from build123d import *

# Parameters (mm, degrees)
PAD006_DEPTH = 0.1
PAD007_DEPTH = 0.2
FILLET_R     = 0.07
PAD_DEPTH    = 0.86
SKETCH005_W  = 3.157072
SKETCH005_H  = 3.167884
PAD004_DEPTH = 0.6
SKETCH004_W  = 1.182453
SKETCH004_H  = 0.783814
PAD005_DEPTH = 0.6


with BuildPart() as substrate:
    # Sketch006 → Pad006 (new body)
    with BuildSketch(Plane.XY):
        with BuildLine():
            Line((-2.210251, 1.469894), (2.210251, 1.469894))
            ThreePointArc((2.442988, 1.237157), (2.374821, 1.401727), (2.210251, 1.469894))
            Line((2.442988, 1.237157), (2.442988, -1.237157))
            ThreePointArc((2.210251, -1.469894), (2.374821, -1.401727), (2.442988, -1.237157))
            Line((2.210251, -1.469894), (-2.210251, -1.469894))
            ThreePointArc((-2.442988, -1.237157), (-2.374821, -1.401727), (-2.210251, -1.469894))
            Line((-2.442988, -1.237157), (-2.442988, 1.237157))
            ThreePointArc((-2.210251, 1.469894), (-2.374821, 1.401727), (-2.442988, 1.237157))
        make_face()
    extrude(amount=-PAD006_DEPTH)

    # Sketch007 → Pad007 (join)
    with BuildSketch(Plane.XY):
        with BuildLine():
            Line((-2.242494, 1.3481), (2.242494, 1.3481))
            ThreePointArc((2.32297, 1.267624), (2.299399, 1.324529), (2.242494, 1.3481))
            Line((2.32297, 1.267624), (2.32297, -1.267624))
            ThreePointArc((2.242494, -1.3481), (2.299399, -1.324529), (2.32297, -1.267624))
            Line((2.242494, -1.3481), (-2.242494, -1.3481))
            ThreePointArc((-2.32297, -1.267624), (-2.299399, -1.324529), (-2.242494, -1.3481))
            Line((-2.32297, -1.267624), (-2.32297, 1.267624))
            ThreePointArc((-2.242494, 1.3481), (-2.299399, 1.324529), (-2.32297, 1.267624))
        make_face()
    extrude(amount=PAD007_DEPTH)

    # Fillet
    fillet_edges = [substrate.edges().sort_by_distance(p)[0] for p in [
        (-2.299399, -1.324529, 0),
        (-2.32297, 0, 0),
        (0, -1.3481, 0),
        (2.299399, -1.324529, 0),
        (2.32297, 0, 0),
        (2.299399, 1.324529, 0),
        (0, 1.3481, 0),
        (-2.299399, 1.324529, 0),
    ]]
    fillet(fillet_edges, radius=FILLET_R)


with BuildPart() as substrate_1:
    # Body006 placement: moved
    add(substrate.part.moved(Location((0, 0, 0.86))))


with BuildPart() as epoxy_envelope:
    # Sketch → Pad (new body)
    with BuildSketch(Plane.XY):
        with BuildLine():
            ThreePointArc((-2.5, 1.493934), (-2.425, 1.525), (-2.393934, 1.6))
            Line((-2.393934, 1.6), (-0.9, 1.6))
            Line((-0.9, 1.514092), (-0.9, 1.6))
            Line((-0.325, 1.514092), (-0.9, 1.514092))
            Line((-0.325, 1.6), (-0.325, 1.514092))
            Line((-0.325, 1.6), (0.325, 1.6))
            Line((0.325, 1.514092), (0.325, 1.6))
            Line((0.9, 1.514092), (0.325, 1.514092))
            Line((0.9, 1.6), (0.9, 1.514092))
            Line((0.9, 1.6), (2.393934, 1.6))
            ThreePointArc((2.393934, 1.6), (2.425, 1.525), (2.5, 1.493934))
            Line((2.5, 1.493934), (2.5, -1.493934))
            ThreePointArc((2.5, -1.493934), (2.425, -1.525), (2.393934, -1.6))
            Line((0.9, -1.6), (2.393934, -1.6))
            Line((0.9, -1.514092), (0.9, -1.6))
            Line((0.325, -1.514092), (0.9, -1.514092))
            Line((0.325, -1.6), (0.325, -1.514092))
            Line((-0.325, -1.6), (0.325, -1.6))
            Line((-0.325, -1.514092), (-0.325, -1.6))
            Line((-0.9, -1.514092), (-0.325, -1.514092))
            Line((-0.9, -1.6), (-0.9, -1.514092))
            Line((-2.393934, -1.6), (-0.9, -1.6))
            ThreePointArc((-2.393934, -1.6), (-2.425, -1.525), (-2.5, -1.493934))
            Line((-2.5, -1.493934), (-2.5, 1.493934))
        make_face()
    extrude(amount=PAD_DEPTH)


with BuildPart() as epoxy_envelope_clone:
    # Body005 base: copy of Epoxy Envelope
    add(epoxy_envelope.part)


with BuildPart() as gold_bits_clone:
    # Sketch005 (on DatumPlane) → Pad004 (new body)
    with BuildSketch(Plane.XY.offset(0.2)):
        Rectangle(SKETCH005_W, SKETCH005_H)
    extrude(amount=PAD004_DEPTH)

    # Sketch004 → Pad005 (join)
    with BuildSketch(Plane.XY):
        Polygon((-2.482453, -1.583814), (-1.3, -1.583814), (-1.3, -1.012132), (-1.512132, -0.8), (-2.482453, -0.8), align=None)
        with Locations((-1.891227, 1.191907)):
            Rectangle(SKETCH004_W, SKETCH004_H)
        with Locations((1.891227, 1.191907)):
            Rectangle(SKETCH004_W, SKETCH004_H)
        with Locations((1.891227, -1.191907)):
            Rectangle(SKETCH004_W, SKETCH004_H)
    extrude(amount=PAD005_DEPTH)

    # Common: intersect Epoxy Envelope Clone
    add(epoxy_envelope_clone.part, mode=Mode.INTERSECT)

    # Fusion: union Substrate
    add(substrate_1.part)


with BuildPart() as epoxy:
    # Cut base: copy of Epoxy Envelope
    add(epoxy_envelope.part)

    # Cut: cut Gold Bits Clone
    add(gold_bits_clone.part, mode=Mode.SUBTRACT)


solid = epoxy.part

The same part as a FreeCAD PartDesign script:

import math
import FreeCAD as App
import Part
import Sketcher
from FreeCAD import Vector
Q = App.Units.Quantity


def edges_at(feature, points):
    """Names of the edges that pass closest to the given points."""
    edges = feature.Shape.Edges
    near = lambda p: min(range(len(edges)), key=lambda i: edges[i].distToShape(Part.Vertex(*p))[0])
    return sorted({f"Edge{near(p) + 1}" for p in points})


def add_polygon(sketch, points):
    """Adds a closed chain of lines whose ends are joined by coincident constraints."""
    first, n = sketch.GeometryCount, len(points)
    for a, b in zip(points, points[1:] + points[:1]):
        sketch.addGeometry(Part.LineSegment(App.Vector(*a, 0), App.Vector(*b, 0)), False)
    for i in range(n):
        sketch.addConstraint(Sketcher.Constraint("Coincident", first + i, 2, first + (i + 1) % n, 1))

doc = App.newDocument("Part")
body = doc.addObject("PartDesign::Body", "Body")

# Sketch on XY plane
sketch1 = body.newObject("Sketcher::SketchObject", "Sketch")
sketch1.AttachmentSupport = (doc.getObject("XY_Plane"), [""])
sketch1.MapMode = "FlatFace"
sketch1.addGeometry(Part.LineSegment(Vector(2.21, 1.47, 0), Vector(-2.21, 1.47, 0)), False)
sketch1.addGeometry(Part.ArcOfCircle(Part.Circle(Vector(-2.21, 1.24, 0), Vector(0, 0, 1), 0.23), math.radians(90), math.radians(180)), False)
sketch1.addGeometry(Part.LineSegment(Vector(-2.44, 1.24, 0), Vector(-2.44, -1.24, 0)), False)
sketch1.addGeometry(Part.ArcOfCircle(Part.Circle(Vector(-2.21, -1.24, 0), Vector(0, 0, 1), 0.23), math.radians(180), math.radians(270)), False)
sketch1.addGeometry(Part.LineSegment(Vector(-2.21, -1.47, 0), Vector(2.21, -1.47, 0)), False)
sketch1.addGeometry(Part.ArcOfCircle(Part.Circle(Vector(2.21, -1.24, 0), Vector(0, 0, 1), 0.23), math.radians(-90), math.radians(0)), False)
sketch1.addGeometry(Part.LineSegment(Vector(2.44, -1.24, 0), Vector(2.44, 1.24, 0)), False)
sketch1.addGeometry(Part.ArcOfCircle(Part.Circle(Vector(2.21, 1.24, 0), Vector(0, 0, 1), 0.23), math.radians(0), math.radians(90)), False)
sketch1.addConstraint(Sketcher.Constraint("Tangent", 0, 2, 1, 1))
sketch1.addConstraint(Sketcher.Constraint("Tangent", 1, 2, 2, 1))
sketch1.addConstraint(Sketcher.Constraint("Tangent", 2, 2, 3, 1))
sketch1.addConstraint(Sketcher.Constraint("Tangent", 3, 2, 4, 1))
sketch1.addConstraint(Sketcher.Constraint("Tangent", 4, 2, 5, 1))
sketch1.addConstraint(Sketcher.Constraint("Tangent", 5, 2, 6, 1))
sketch1.addConstraint(Sketcher.Constraint("Tangent", 6, 2, 7, 1))
sketch1.addConstraint(Sketcher.Constraint("Tangent", 7, 2, 0, 1))
sketch1.addConstraint(Sketcher.Constraint("Horizontal", 0))
sketch1.addConstraint(Sketcher.Constraint("Vertical", 2))
sketch1.addConstraint(Sketcher.Constraint("Horizontal", 4))
sketch1.addConstraint(Sketcher.Constraint("Vertical", 6))
sketch1.addConstraint(Sketcher.Constraint("Equal", 1, 3))
sketch1.addConstraint(Sketcher.Constraint("Equal", 3, 5))
sketch1.addConstraint(Sketcher.Constraint("Equal", 5, 7))
sketch1.addConstraint(Sketcher.Constraint("Symmetric", 1, 3, 5, 3, -1, 1))
sketch1.addConstraint(Sketcher.Constraint("Radius", 1, Q("0.232737 mm")))
sketch1.addConstraint(Sketcher.Constraint("DistanceX", 0, 2, 0, 1, Q("4.420502 mm")))
sketch1.addConstraint(Sketcher.Constraint("DistanceY", 2, 2, 2, 1, Q("2.474314 mm")))
pad1 = body.newObject("PartDesign::Pad", "Pad")
pad1.Profile = sketch1
pad1.Length = 0.1
pad1.Reversed = True

# Sketch on XY plane
sketch2 = body.newObject("Sketcher::SketchObject", "Sketch001")
sketch2.AttachmentSupport = (doc.getObject("XY_Plane"), [""])
sketch2.MapMode = "FlatFace"
sketch2.addGeometry(Part.LineSegment(Vector(2.24, 1.35, 0), Vector(-2.24, 1.35, 0)), False)
sketch2.addGeometry(Part.ArcOfCircle(Part.Circle(Vector(-2.24, 1.27, 0), Vector(0, 0, 1), 0.08), math.radians(90), math.radians(180)), False)
sketch2.addGeometry(Part.LineSegment(Vector(-2.32, 1.27, 0), Vector(-2.32, -1.27, 0)), False)
sketch2.addGeometry(Part.ArcOfCircle(Part.Circle(Vector(-2.24, -1.27, 0), Vector(0, 0, 1), 0.08), math.radians(-180), math.radians(-90)), False)
sketch2.addGeometry(Part.LineSegment(Vector(-2.24, -1.35, 0), Vector(2.24, -1.35, 0)), False)
sketch2.addGeometry(Part.ArcOfCircle(Part.Circle(Vector(2.24, -1.27, 0), Vector(0, 0, 1), 0.08), math.radians(-90), math.radians(0)), False)
sketch2.addGeometry(Part.LineSegment(Vector(2.32, -1.27, 0), Vector(2.32, 1.27, 0)), False)
sketch2.addGeometry(Part.ArcOfCircle(Part.Circle(Vector(2.24, 1.27, 0), Vector(0, 0, 1), 0.08), math.radians(0), math.radians(90)), False)
sketch2.addConstraint(Sketcher.Constraint("Coincident", 0, 2, 1, 1))
sketch2.addConstraint(Sketcher.Constraint("Coincident", 1, 2, 2, 1))
sketch2.addConstraint(Sketcher.Constraint("Coincident", 2, 2, 3, 1))
sketch2.addConstraint(Sketcher.Constraint("Coincident", 3, 2, 4, 1))
sketch2.addConstraint(Sketcher.Constraint("Coincident", 4, 2, 5, 1))
sketch2.addConstraint(Sketcher.Constraint("Coincident", 5, 2, 6, 1))
sketch2.addConstraint(Sketcher.Constraint("Coincident", 6, 2, 7, 1))
sketch2.addConstraint(Sketcher.Constraint("Coincident", 7, 2, 0, 1))
sketch2.addConstraint(Sketcher.Constraint("Horizontal", 0))
sketch2.addConstraint(Sketcher.Constraint("Vertical", 2))
sketch2.addConstraint(Sketcher.Constraint("Horizontal", 4))
sketch2.addConstraint(Sketcher.Constraint("Vertical", 6))
sketch2.addConstraint(Sketcher.Constraint("Equal", 1, 3))
sketch2.addConstraint(Sketcher.Constraint("Equal", 3, 5))
sketch2.addConstraint(Sketcher.Constraint("Equal", 5, 7))
sketch2.addConstraint(Sketcher.Constraint("Symmetric", 1, 3, 5, 3, -1, 1))
sketch2.addConstraint(Sketcher.Constraint("Horizontal", 7, 3, 1, 2))
sketch2.addConstraint(Sketcher.Constraint("Horizontal", 5, 3, 2, 2))
sketch2.addConstraint(Sketcher.Constraint("Horizontal", 2, 2, 5, 2))
sketch2.addConstraint(Sketcher.Constraint("Horizontal", 1, 2, 6, 2))
sketch2.addConstraint(Sketcher.Constraint("Vertical", 3, 3, 0, 2))
sketch2.addConstraint(Sketcher.Constraint("Vertical", 0, 2, 3, 2))
sketch2.addConstraint(Sketcher.Constraint("Vertical", 7, 3, 4, 2))
sketch2.addConstraint(Sketcher.Constraint("Vertical", 4, 2, 7, 2))
sketch2.addConstraint(Sketcher.Constraint("Radius", 1, Q("0.080476 mm")))
sketch2.addConstraint(Sketcher.Constraint("DistanceX", 0, 2, 0, 1, Q("4.484988 mm")))
sketch2.addConstraint(Sketcher.Constraint("DistanceY", 2, 2, 2, 1, Q("2.535248 mm")))
pad2 = body.newObject("PartDesign::Pad", "Pad001")
pad2.Profile = sketch2
pad2.Length = 0.2
doc.recompute()

fillet = body.newObject("PartDesign::Fillet", "Fillet")
fillet.Base = (pad2, edges_at(pad2, [
    (-2.299, -1.325, 0),
    (-2.323, 0, 0),
    (0, -1.348, 0),
    (2.299, -1.325, 0),
    (2.323, 0, 0),
    (2.299, 1.325, 0),
    (0, 1.348, 0),
    (-2.299, 1.325, 0),
]))
fillet.Radius = 0.07
body2 = doc.addObject("PartDesign::Body", "Body001")
doc.recompute()

body.Placement = App.Placement(Vector(0, 0, 0.86), App.Rotation(Vector(0, 0, 1), 0))
boolean = body2.newObject("PartDesign::Boolean", "Boolean")
boolean.Type = "Fuse"
boolean.addObjects([body])
body3 = doc.addObject("PartDesign::Body", "Body002")

# Sketch on XY plane
sketch3 = body3.newObject("Sketcher::SketchObject", "Sketch002")
sketch3.AttachmentSupport = (doc.getObject("XY_Plane002"), [""])
sketch3.MapMode = "FlatFace"
sketch3.addGeometry(Part.ArcOfCircle(Part.Circle(Vector(-2.5, 1.6, 0), Vector(0, 0, 1), 0.11), math.radians(-90), math.radians(0)), False)
sketch3.addGeometry(Part.LineSegment(Vector(-2.5, 1.49, 0), Vector(-2.5, -1.49, 0)), False)
sketch3.addGeometry(Part.ArcOfCircle(Part.Circle(Vector(-2.5, -1.6, 0), Vector(0, 0, 1), 0.11), math.radians(0), math.radians(90)), False)
sketch3.addGeometry(Part.LineSegment(Vector(-2.39, -1.6, 0), Vector(-0.9, -1.6, 0)), False)
sketch3.addGeometry(Part.LineSegment(Vector(-0.9, -1.6, 0), Vector(-0.9, -1.51, 0)), False)
sketch3.addGeometry(Part.LineSegment(Vector(-0.9, -1.51, 0), Vector(-0.33, -1.51, 0)), False)
sketch3.addGeometry(Part.LineSegment(Vector(-0.33, -1.51, 0), Vector(-0.33, -1.6, 0)), False)
sketch3.addGeometry(Part.LineSegment(Vector(-0.33, -1.6, 0), Vector(0.33, -1.6, 0)), False)
sketch3.addGeometry(Part.LineSegment(Vector(0.33, -1.6, 0), Vector(0.33, -1.51, 0)), False)
sketch3.addGeometry(Part.LineSegment(Vector(0.33, -1.51, 0), Vector(0.9, -1.51, 0)), False)
sketch3.addGeometry(Part.LineSegment(Vector(0.9, -1.51, 0), Vector(0.9, -1.6, 0)), False)
sketch3.addGeometry(Part.LineSegment(Vector(0.9, -1.6, 0), Vector(2.39, -1.6, 0)), False)
sketch3.addGeometry(Part.ArcOfCircle(Part.Circle(Vector(2.5, -1.6, 0), Vector(0, 0, 1), 0.11), math.radians(90), math.radians(180)), False)
sketch3.addGeometry(Part.LineSegment(Vector(2.5, -1.49, 0), Vector(2.5, 1.49, 0)), False)
sketch3.addGeometry(Part.ArcOfCircle(Part.Circle(Vector(2.5, 1.6, 0), Vector(0, 0, 1), 0.11), math.radians(180), math.radians(270)), False)
sketch3.addGeometry(Part.LineSegment(Vector(2.39, 1.6, 0), Vector(0.9, 1.6, 0)), False)
sketch3.addGeometry(Part.LineSegment(Vector(0.9, 1.6, 0), Vector(0.9, 1.51, 0)), False)
sketch3.addGeometry(Part.LineSegment(Vector(0.9, 1.51, 0), Vector(0.33, 1.51, 0)), False)
sketch3.addGeometry(Part.LineSegment(Vector(0.33, 1.51, 0), Vector(0.33, 1.6, 0)), False)
sketch3.addGeometry(Part.LineSegment(Vector(0.33, 1.6, 0), Vector(-0.33, 1.6, 0)), False)
sketch3.addGeometry(Part.LineSegment(Vector(-0.33, 1.6, 0), Vector(-0.33, 1.51, 0)), False)
sketch3.addGeometry(Part.LineSegment(Vector(-0.33, 1.51, 0), Vector(-0.9, 1.51, 0)), False)
sketch3.addGeometry(Part.LineSegment(Vector(-0.9, 1.51, 0), Vector(-0.9, 1.6, 0)), False)
sketch3.addGeometry(Part.LineSegment(Vector(-0.9, 1.6, 0), Vector(-2.39, 1.6, 0)), False)
sketch3.addConstraint(Sketcher.Constraint("Coincident", 0, 1, 1, 1))
sketch3.addConstraint(Sketcher.Constraint("Coincident", 1, 2, 2, 2))
sketch3.addConstraint(Sketcher.Constraint("Coincident", 2, 1, 3, 1))
sketch3.addConstraint(Sketcher.Constraint("Coincident", 3, 2, 4, 1))
sketch3.addConstraint(Sketcher.Constraint("Coincident", 4, 2, 5, 1))
sketch3.addConstraint(Sketcher.Constraint("Coincident", 5, 2, 6, 1))
sketch3.addConstraint(Sketcher.Constraint("Coincident", 6, 2, 7, 1))
sketch3.addConstraint(Sketcher.Constraint("Coincident", 7, 2, 8, 1))
sketch3.addConstraint(Sketcher.Constraint("Coincident", 8, 2, 9, 1))
sketch3.addConstraint(Sketcher.Constraint("Coincident", 9, 2, 10, 1))
sketch3.addConstraint(Sketcher.Constraint("Coincident", 10, 2, 11, 1))
sketch3.addConstraint(Sketcher.Constraint("Coincident", 11, 2, 12, 2))
sketch3.addConstraint(Sketcher.Constraint("Coincident", 12, 1, 13, 1))
sketch3.addConstraint(Sketcher.Constraint("Coincident", 13, 2, 14, 2))
sketch3.addConstraint(Sketcher.Constraint("Coincident", 14, 1, 15, 1))
sketch3.addConstraint(Sketcher.Constraint("Coincident", 15, 2, 16, 1))
sketch3.addConstraint(Sketcher.Constraint("Coincident", 16, 2, 17, 1))
sketch3.addConstraint(Sketcher.Constraint("Coincident", 17, 2, 18, 1))
sketch3.addConstraint(Sketcher.Constraint("Coincident", 18, 2, 19, 1))
sketch3.addConstraint(Sketcher.Constraint("Coincident", 19, 2, 20, 1))
sketch3.addConstraint(Sketcher.Constraint("Coincident", 20, 2, 21, 1))
sketch3.addConstraint(Sketcher.Constraint("Coincident", 21, 2, 22, 1))
sketch3.addConstraint(Sketcher.Constraint("Coincident", 22, 2, 23, 1))
sketch3.addConstraint(Sketcher.Constraint("Coincident", 23, 2, 0, 2))
sketch3.addConstraint(Sketcher.Constraint("Vertical", 1))
sketch3.addConstraint(Sketcher.Constraint("Horizontal", 3))
sketch3.addConstraint(Sketcher.Constraint("Vertical", 4))
sketch3.addConstraint(Sketcher.Constraint("Horizontal", 5))
sketch3.addConstraint(Sketcher.Constraint("Vertical", 6))
sketch3.addConstraint(Sketcher.Constraint("Horizontal", 7))
sketch3.addConstraint(Sketcher.Constraint("Vertical", 8))
sketch3.addConstraint(Sketcher.Constraint("Horizontal", 9))
sketch3.addConstraint(Sketcher.Constraint("Vertical", 10))
sketch3.addConstraint(Sketcher.Constraint("Horizontal", 11))
sketch3.addConstraint(Sketcher.Constraint("Vertical", 13))
sketch3.addConstraint(Sketcher.Constraint("Horizontal", 15))
sketch3.addConstraint(Sketcher.Constraint("Vertical", 16))
sketch3.addConstraint(Sketcher.Constraint("Horizontal", 17))
sketch3.addConstraint(Sketcher.Constraint("Vertical", 18))
sketch3.addConstraint(Sketcher.Constraint("Horizontal", 19))
sketch3.addConstraint(Sketcher.Constraint("Vertical", 20))
sketch3.addConstraint(Sketcher.Constraint("Horizontal", 21))
sketch3.addConstraint(Sketcher.Constraint("Vertical", 22))
sketch3.addConstraint(Sketcher.Constraint("Horizontal", 23))
sketch3.addConstraint(Sketcher.Constraint("Equal", 0, 2))
sketch3.addConstraint(Sketcher.Constraint("Equal", 2, 12))
sketch3.addConstraint(Sketcher.Constraint("Equal", 12, 14))
sketch3.addConstraint(Sketcher.Constraint("Symmetric", 0, 3, 12, 3, -1, 1))
sketch3.addConstraint(Sketcher.Constraint("Symmetric", 2, 3, 14, 3, -1, 1))
sketch3.addConstraint(Sketcher.Constraint("Symmetric", 3, 2, 15, 2, -1, 1))
sketch3.addConstraint(Sketcher.Constraint("Symmetric", 5, 2, 17, 2, -1, 1))
sketch3.addConstraint(Sketcher.Constraint("Symmetric", 7, 2, 19, 2, -1, 1))
sketch3.addConstraint(Sketcher.Constraint("Symmetric", 9, 2, 21, 2, -1, 1))
sketch3.addConstraint(Sketcher.Constraint("Symmetric", 2, 3, 12, 3, -2))
sketch3.addConstraint(Sketcher.Constraint("Symmetric", 5, 2, 8, 2, -2))
sketch3.addConstraint(Sketcher.Constraint("Symmetric", 3, 2, 10, 2, -2))
sketch3.addConstraint(Sketcher.Constraint("Horizontal", 12, 3, 2, 1))
sketch3.addConstraint(Sketcher.Constraint("Horizontal", 3, 2, 6, 2))
sketch3.addConstraint(Sketcher.Constraint("Horizontal", 19, 2, 22, 2))
sketch3.addConstraint(Sketcher.Constraint("Vertical", 2, 3, 0, 1))
sketch3.addConstraint(Sketcher.Constraint("Vertical", 14, 3, 12, 1))
sketch3.addConstraint(Sketcher.Constraint("DistanceX", 2, 3, 12, 3, Q("5 mm")))
sketch3.addConstraint(Sketcher.Constraint("DistanceX", 7, 1, 7, 2, Q("0.65 mm")))
sketch3.addConstraint(Sketcher.Constraint("DistanceY", -1, 1, 0, 3, Q("1.6 mm")))
sketch3.addConstraint(Sketcher.Constraint("DistanceX", 3, 2, -1, 1, Q("0.9 mm")))
sketch3.addConstraint(Sketcher.Constraint("Radius", 0, Q("0.106066 mm")))
sketch3.addConstraint(Sketcher.Constraint("DistanceY", 4, 1, 4, 2, Q("0.085908 mm")))
pad3 = body3.newObject("PartDesign::Pad", "Pad002")
pad3.Profile = sketch3
pad3.Length = 0.86
body4 = doc.addObject("PartDesign::Body", "Body003")
doc.recompute()

body4.BaseFeature = body3
doc.recompute()
body5 = doc.addObject("PartDesign::Body", "Body004")

# Sketch on XY plane
sketch4 = body5.newObject("Sketcher::SketchObject", "Sketch003")
sketch4.AttachmentSupport = (doc.getObject("XY_Plane004"), [""])
sketch4.MapMode = "FlatFace"
sketch4.AttachmentOffset = App.Placement(Vector(0, 0, 0.2), App.Rotation())
add_polygon(sketch4, [(-1.6, 1.6), (-1.6, -1.6), (1.6, -1.6), (1.6, 1.6)])  # lines 0-3
sketch4.addConstraint(Sketcher.Constraint("Vertical", 0))
sketch4.addConstraint(Sketcher.Constraint("Horizontal", 1))
sketch4.addConstraint(Sketcher.Constraint("Vertical", 2))
sketch4.addConstraint(Sketcher.Constraint("Horizontal", 3))
sketch4.addConstraint(Sketcher.Constraint("Symmetric", 0, 2, 2, 2, -1, 1))
sketch4.addConstraint(Sketcher.Constraint("DistanceX", 1, 1, 1, 2, Q("3.157072 mm")))
sketch4.addConstraint(Sketcher.Constraint("DistanceY", 0, 2, 0, 1, Q("3.167884 mm")))
pad4 = body5.newObject("PartDesign::Pad", "Pad003")
pad4.Profile = sketch4
pad4.Length = 0.6

# Sketch on XY plane
sketch5 = body5.newObject("Sketcher::SketchObject", "Sketch004")
sketch5.AttachmentSupport = (doc.getObject("XY_Plane004"), [""])
sketch5.MapMode = "FlatFace"
add_polygon(sketch5, [(-2.48, -1.58), (-1.3, -1.58), (-1.3, -1.01), (-1.51, -0.8), (-2.48, -0.8)])  # lines 0-4
add_polygon(sketch5, [(-2.48, 1.58), (-2.48, 0.8), (-1.3, 0.8), (-1.3, 1.58)])  # lines 5-8
add_polygon(sketch5, [(1.3, 1.58), (1.3, 0.8), (2.48, 0.8), (2.48, 1.58)])  # lines 9-12
add_polygon(sketch5, [(1.3, -0.8), (1.3, -1.58), (2.48, -1.58), (2.48, -0.8)])  # lines 13-16
sketch5.addConstraint(Sketcher.Constraint("Horizontal", 0))
sketch5.addConstraint(Sketcher.Constraint("Vertical", 1))
sketch5.addConstraint(Sketcher.Constraint("Horizontal", 3))
sketch5.addConstraint(Sketcher.Constraint("Vertical", 4))
sketch5.addConstraint(Sketcher.Constraint("Vertical", 5))
sketch5.addConstraint(Sketcher.Constraint("Horizontal", 6))
sketch5.addConstraint(Sketcher.Constraint("Vertical", 7))
sketch5.addConstraint(Sketcher.Constraint("Horizontal", 8))
sketch5.addConstraint(Sketcher.Constraint("Vertical", 9))
sketch5.addConstraint(Sketcher.Constraint("Horizontal", 10))
sketch5.addConstraint(Sketcher.Constraint("Vertical", 11))
sketch5.addConstraint(Sketcher.Constraint("Horizontal", 12))
sketch5.addConstraint(Sketcher.Constraint("Vertical", 13))
sketch5.addConstraint(Sketcher.Constraint("Horizontal", 14))
sketch5.addConstraint(Sketcher.Constraint("Vertical", 15))
sketch5.addConstraint(Sketcher.Constraint("Horizontal", 16))
sketch5.addConstraint(Sketcher.Constraint("Symmetric", 3, 2, 10, 2, -1, 1))
sketch5.addConstraint(Sketcher.Constraint("Symmetric", 0, 2, 12, 2, -1, 1))
sketch5.addConstraint(Sketcher.Constraint("Symmetric", 7, 2, 13, 2, -1, 1))
sketch5.addConstraint(Sketcher.Constraint("Symmetric", 5, 2, 15, 2, -1, 1))
sketch5.addConstraint(Sketcher.Constraint("Symmetric", 6, 2, 9, 2, -2))
sketch5.addConstraint(Sketcher.Constraint("Symmetric", 8, 2, 11, 2, -2))
sketch5.addConstraint(Sketcher.Constraint("Angle", 2, Q("135 deg")))
sketch5.addConstraint(Sketcher.Constraint("Distance", 2, Q("0.3 mm")))
sketch5.addConstraint(Sketcher.Constraint("DistanceX", 0, 2, -1, 1, Q("1.3 mm")))
sketch5.addConstraint(Sketcher.Constraint("DistanceY", 2, 2, -1, 1, Q("0.8 mm")))
sketch5.addConstraint(Sketcher.Constraint("DistanceX", 3, 2, 3, 1, Q("0.970321 mm")))
sketch5.addConstraint(Sketcher.Constraint("DistanceY", 1, 1, 1, 2, Q("0.571682 mm")))
pad5 = body5.newObject("PartDesign::Pad", "Pad004")
pad5.Profile = sketch5
pad5.Length = 0.6
doc.recompute()

boolean2 = body5.newObject("PartDesign::Boolean", "Boolean001")
boolean2.Type = "Common"
boolean2.addObjects([body4])
doc.recompute()

boolean3 = body5.newObject("PartDesign::Boolean", "Boolean002")
boolean3.Type = "Fuse"
boolean3.addObjects([body2])
doc.recompute()

boolean4 = body3.newObject("PartDesign::Boolean", "Boolean003")
boolean4.Type = "Cut"
boolean4.addObjects([body5])

doc.recompute()
